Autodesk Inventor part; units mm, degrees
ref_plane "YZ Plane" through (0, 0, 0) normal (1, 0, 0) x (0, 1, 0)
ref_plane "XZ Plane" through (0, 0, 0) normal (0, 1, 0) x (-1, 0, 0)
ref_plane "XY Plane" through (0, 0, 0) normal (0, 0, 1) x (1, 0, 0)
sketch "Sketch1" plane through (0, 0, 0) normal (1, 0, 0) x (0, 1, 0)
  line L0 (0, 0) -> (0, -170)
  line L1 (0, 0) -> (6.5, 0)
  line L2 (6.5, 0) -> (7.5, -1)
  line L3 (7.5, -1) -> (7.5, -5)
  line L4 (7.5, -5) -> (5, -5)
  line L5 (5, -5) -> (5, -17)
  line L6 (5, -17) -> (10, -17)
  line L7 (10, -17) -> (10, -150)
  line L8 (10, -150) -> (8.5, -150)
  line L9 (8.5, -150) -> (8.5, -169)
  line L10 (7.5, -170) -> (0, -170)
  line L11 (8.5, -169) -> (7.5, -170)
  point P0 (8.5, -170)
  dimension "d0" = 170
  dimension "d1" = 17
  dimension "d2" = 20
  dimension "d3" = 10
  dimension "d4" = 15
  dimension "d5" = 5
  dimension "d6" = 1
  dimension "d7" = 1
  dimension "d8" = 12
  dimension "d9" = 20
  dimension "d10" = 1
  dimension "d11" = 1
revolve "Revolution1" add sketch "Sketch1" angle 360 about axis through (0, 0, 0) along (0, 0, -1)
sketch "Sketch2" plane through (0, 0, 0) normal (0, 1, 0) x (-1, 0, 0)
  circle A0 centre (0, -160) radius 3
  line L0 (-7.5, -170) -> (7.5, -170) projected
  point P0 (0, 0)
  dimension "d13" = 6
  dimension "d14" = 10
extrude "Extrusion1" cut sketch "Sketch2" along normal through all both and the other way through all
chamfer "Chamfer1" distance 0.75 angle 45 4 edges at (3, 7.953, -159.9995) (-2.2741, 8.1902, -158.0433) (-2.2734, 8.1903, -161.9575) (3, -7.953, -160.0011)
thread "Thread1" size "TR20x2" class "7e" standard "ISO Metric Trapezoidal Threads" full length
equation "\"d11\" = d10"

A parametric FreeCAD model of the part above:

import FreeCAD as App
import Part
import Sketcher
Q = App.Units.Quantity


def edges_at(feature, points):
    """Names of the edges that pass closest to the given points."""
    edges = feature.Shape.Edges
    near = lambda p: min(range(len(edges)), key=lambda i: edges[i].distToShape(Part.Vertex(*p))[0])
    return sorted({f"Edge{near(p) + 1}" for p in points})


def add_polygon(sketch, points):
    """Adds a closed chain of lines whose ends are joined by coincident constraints."""
    first, n = sketch.GeometryCount, len(points)
    for a, b in zip(points, points[1:] + points[:1]):
        sketch.addGeometry(Part.LineSegment(App.Vector(*a, 0), App.Vector(*b, 0)), False)
    for i in range(n):
        sketch.addConstraint(Sketcher.Constraint("Coincident", first + i, 2, first + (i + 1) % n, 1))

doc = App.newDocument("Part")
body = doc.addObject("PartDesign::Body", "Body")

# Sketch on YZ plane
sketch1 = doc.addObject("Sketcher::SketchObject", "Sketch")
body.addObject(sketch1)
sketch1.AttachmentSupport = (doc.YZ_Plane, [""])
sketch1.MapMode = "FlatFace"
add_polygon(sketch1, [(6.5, 0), (0, 0), (0, -170), (7.5, -170), (8.5, -169), (8.5, -150), (10, -150), (10, -17), (5, -17), (5, -5), (7.5, -5), (7.5, -1)])  # lines 0-11
sketch1.addConstraint([
    Sketcher.Constraint("Horizontal", 0),
    Sketcher.Constraint("Vertical", 1),
    Sketcher.Constraint("Horizontal", 2),
    Sketcher.Constraint("Vertical", 4),
    Sketcher.Constraint("Horizontal", 5),
    Sketcher.Constraint("Vertical", 6),
    Sketcher.Constraint("Horizontal", 7),
    Sketcher.Constraint("Vertical", 8),
    Sketcher.Constraint("Horizontal", 9),
    Sketcher.Constraint("Vertical", 10),
    Sketcher.Constraint("Coincident", 0, 2, -1, 1),
    Sketcher.Constraint("Perpendicular", 3, 11),
    Sketcher.Constraint("Vertical", 2, 2, 9, 2),
    Sketcher.Constraint("Equal", 3, 11),
    Sketcher.Constraint("DistanceX", 7, 2, 7, 1, Q("5 mm")),
    Sketcher.Constraint("DistanceY", 1, 2, 1, 1, Q("170 mm")),
    Sketcher.Constraint("DistanceY", 8, 1, 8, 2, Q("12 mm")),
    Sketcher.Constraint("DistanceX", -1, 1, 5, 2, Q("10 mm")),
    Sketcher.Constraint("DistanceY", 6, 2, -1, 1, Q("17 mm")),
    Sketcher.Constraint("DistanceY", 10, 2, -1, 1, Q("1 mm")),
    Sketcher.Constraint("DistanceY", 2, 2, 3, 2, Q("1 mm")),
    Sketcher.Constraint("DistanceY", 2, 2, 4, 2, Q("20 mm")),
    Sketcher.Constraint("DistanceX", 0, 2, 0, 1, Q("6.5 mm")),
])
revolution = doc.addObject("PartDesign::Revolution", "Revolution")
body.addObject(revolution)
revolution.Profile = sketch1
revolution.ReferenceAxis = (sketch1, ["V_Axis"])
revolution.Angle = 360

# Sketch on XZ plane
sketch2 = doc.addObject("Sketcher::SketchObject", "Sketch001")
body.addObject(sketch2)
sketch2.AttachmentSupport = (doc.XZ_Plane, [""])
sketch2.MapMode = "FlatFace"
sketch2.addGeometry(Part.Circle(App.Vector(0, -160, 0), App.Vector(0, 0, 1), 3), False)
sketch2.addConstraint([
    Sketcher.Constraint("PointOnObject", 0, 3, -2),
    Sketcher.Constraint("Diameter", 0, Q("6 mm")),
    Sketcher.Constraint("DistanceY", 0, 3, -1, 1, Q("160 mm")),
])
pocket1 = doc.addObject("PartDesign::Pocket", "Pocket")
body.addObject(pocket1)
pocket1.Profile = sketch2
pocket1.Type = "ThroughAll"
pocket1.Midplane = True
doc.recompute()

chamfer = doc.addObject("PartDesign::Chamfer", "Chamfer")
body.addObject(chamfer)
chamfer.Base = (pocket1, edges_at(pocket1, [
    (3, 7.953, -160),
    (-2.274, 8.19, -158.043),
    (-2.273, 8.19, -161.958),
    (3, -7.953, -160.001),
]))
chamfer.Size = 0.75

doc.recompute()
